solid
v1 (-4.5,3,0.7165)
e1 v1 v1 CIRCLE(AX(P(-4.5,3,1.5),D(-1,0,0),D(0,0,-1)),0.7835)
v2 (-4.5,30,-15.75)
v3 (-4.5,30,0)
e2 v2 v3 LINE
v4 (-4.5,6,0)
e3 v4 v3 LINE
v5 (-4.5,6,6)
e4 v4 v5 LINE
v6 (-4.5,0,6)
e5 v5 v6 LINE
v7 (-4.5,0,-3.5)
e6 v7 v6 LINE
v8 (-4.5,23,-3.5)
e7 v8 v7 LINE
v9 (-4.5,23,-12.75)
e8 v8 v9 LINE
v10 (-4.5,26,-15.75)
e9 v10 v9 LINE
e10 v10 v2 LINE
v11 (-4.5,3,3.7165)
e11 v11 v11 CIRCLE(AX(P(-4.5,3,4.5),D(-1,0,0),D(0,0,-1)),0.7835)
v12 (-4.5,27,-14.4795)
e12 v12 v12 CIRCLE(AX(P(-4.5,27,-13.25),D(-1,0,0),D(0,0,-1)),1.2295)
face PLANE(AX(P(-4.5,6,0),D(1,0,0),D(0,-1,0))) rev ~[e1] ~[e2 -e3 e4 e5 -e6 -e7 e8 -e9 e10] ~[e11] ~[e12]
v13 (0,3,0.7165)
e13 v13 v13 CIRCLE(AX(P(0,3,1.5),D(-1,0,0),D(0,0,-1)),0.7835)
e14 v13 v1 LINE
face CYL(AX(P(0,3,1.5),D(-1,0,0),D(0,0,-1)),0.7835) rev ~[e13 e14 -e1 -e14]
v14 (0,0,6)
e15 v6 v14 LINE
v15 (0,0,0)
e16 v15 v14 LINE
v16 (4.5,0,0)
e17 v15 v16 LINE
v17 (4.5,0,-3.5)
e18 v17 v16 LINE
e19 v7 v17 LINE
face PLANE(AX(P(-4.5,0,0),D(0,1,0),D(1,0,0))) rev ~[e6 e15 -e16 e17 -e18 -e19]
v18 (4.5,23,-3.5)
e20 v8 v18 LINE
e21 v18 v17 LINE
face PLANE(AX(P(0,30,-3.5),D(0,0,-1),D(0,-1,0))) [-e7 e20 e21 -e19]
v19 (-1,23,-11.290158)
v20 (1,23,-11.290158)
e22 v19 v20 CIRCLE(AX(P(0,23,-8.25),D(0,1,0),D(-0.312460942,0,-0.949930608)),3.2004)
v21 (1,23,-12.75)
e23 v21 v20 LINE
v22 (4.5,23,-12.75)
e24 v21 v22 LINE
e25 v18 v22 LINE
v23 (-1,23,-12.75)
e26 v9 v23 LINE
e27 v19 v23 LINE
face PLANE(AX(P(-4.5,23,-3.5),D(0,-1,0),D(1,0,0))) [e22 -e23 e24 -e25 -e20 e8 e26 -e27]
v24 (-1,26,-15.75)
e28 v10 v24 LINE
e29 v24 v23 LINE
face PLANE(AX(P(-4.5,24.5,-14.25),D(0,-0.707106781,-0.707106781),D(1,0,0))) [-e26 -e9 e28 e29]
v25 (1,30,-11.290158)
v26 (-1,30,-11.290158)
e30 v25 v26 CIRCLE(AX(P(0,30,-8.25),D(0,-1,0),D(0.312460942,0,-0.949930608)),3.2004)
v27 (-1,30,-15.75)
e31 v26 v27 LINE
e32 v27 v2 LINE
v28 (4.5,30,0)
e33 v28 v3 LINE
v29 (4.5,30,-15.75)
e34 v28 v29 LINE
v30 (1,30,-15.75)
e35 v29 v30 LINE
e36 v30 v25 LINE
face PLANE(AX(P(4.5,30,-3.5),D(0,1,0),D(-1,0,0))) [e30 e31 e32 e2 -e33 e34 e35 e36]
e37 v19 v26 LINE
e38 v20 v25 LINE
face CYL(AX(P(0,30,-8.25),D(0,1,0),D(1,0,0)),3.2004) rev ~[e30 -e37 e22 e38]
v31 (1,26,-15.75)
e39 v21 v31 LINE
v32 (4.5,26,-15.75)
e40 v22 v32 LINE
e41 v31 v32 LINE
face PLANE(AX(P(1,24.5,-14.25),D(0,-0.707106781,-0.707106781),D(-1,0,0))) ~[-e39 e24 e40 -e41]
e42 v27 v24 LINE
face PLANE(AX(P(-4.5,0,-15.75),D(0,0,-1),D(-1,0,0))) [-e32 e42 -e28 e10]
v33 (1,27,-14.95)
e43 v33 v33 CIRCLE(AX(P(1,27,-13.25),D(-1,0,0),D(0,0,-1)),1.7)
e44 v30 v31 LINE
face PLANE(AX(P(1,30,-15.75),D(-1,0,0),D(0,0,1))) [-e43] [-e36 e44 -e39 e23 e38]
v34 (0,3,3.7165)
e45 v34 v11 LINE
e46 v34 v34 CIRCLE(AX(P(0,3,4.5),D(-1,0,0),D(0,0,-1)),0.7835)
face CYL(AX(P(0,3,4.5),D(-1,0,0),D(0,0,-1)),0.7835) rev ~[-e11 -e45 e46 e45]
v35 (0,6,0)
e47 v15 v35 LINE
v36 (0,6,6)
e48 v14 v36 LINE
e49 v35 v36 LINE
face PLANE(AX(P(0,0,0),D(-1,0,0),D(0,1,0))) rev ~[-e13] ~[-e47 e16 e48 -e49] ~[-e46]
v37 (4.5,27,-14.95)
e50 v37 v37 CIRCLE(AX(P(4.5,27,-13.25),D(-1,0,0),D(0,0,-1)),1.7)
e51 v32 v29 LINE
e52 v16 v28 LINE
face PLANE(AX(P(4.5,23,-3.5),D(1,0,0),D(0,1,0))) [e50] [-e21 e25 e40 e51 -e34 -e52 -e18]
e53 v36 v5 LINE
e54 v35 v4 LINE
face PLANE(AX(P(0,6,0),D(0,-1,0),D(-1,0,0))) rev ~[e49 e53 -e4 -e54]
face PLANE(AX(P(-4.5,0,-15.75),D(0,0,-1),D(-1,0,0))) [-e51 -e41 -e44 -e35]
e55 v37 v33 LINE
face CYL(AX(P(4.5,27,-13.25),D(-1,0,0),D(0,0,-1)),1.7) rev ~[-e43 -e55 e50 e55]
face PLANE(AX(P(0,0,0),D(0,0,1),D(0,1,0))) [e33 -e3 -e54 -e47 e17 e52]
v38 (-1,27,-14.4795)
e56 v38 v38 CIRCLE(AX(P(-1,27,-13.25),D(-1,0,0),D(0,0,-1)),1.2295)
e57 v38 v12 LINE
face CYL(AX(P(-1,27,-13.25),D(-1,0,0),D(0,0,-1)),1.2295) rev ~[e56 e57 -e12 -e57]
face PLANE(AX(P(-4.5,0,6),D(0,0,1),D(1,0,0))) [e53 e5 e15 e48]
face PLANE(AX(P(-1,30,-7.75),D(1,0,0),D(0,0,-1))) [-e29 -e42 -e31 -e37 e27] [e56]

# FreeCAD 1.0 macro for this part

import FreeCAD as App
import Part
import Sketcher


def edges_at(feature, points):
    """Names of the edges that pass closest to the given points."""
    edges = feature.Shape.Edges
    near = lambda p: min(range(len(edges)), key=lambda i: edges[i].distToShape(Part.Vertex(*p))[0])
    return sorted({f"Edge{near(p) + 1}" for p in points})


def add_polygon(sketch, points):
    """Adds a closed chain of lines whose ends are joined by coincident constraints."""
    first, n = sketch.GeometryCount, len(points)
    for a, b in zip(points, points[1:] + points[:1]):
        sketch.addGeometry(Part.LineSegment(App.Vector(*a, 0), App.Vector(*b, 0)), False)
    for i in range(n):
        sketch.addConstraint(Sketcher.Constraint("Coincident", first + i, 2, first + (i + 1) % n, 1))

doc = App.newDocument("Part")
params = doc.addObject("Spreadsheet::Sheet", "Params")
for row, (alias, value) in enumerate([
    ("sketch1_width", "30 mm"),
    ("sketch1_height", "3.5 mm"),
    ("pad1_length", "9 mm"),
    ("sketch2_height", "7 mm"),
    ("sketch2_width", "9 mm"),
    ("pad2_length", "12.25 mm"),
    ("sketch3_height", "6 mm"),
    ("sketch3_width", "4.5 mm"),
    ("pad3_length", "6 mm"),
    ("sketch5_width", "2 mm"),
    ("sketch5_height", "8 mm"),
    ("sketch6_diameter", "3.4 mm"),
    ("hole_diameter", "3.4 mm"),
    ("hole_depth", "3.5 mm"),
    ("hole2_diameter", "2.459 mm"),
    ("hole2_depth", "3.5 mm"),
    ("chamfer_size", "3 mm"),
    ("hole3_diameter", "1.567 mm"),
    ("hole4_diameter", "1.567 mm"),
], start=1):
    params.set(f"A{row}", alias)
    params.set(f"B{row}", "=" + value)
    params.setAlias(f"B{row}", alias)

body = doc.addObject("PartDesign::Body", "Body")

# Sketch on YZ plane
sketch1 = doc.addObject("Sketcher::SketchObject", "Sketch")
body.addObject(sketch1)
sketch1.AttachmentSupport = (doc.YZ_Plane, [""])
sketch1.MapMode = "FlatFace"
add_polygon(sketch1, [(30, 0), (0, 0), (0, -3.5), (30, -3.5)])  # lines 0-3
sketch1.addConstraint([
    Sketcher.Constraint("Horizontal", 0),
    Sketcher.Constraint("Vertical", 1),
    Sketcher.Constraint("Horizontal", 2),
    Sketcher.Constraint("Vertical", 3),
    Sketcher.Constraint("Coincident", 0, 2, -1, 1),
    Sketcher.Constraint("DistanceX", 0, 2, 0, 1, 30.0),
    Sketcher.Constraint("DistanceY", 1, 2, 1, 1, 3.5),
])
sketch1.setExpression("Constraints[9]", "Params.sketch1_width")
sketch1.setExpression("Constraints[10]", "Params.sketch1_height")
pad1 = doc.addObject("PartDesign::Pad", "Pad")
body.addObject(pad1)
pad1.Profile = sketch1
pad1.setExpression("Length", "Params.pad1_length")
pad1.Midplane = True

# Sketch on XY plane
sketch2 = doc.addObject("Sketcher::SketchObject", "Sketch001")
body.addObject(sketch2)
sketch2.AttachmentSupport = (doc.XY_Plane, [""])
sketch2.MapMode = "FlatFace"
sketch2.AttachmentOffset = App.Placement(App.Vector(0, 0, -3.5), App.Rotation())
add_polygon(sketch2, [(-4, 30), (4, 30), (4, 23), (-4, 23)])  # lines 0-3
sketch2.addConstraint([
    Sketcher.Constraint("Horizontal", 0),
    Sketcher.Constraint("Vertical", 1),
    Sketcher.Constraint("Horizontal", 2),
    Sketcher.Constraint("Vertical", 3),
    Sketcher.Constraint("DistanceY", 1, 2, 1, 1, 7.0),
    Sketcher.Constraint("DistanceX", 0, 1, 0, 2, 9.0),
    Sketcher.Constraint("DistanceY", -1, 1, 0, 2, 30.0),
    Sketcher.Constraint("DistanceX", -1, 1, 0, 2, 4.5),
])
sketch2.setExpression("Constraints[8]", "Params.sketch2_height")
sketch2.setExpression("Constraints[9]", "Params.sketch2_width")
pad2 = doc.addObject("PartDesign::Pad", "Pad001")
body.addObject(pad2)
pad2.Profile = sketch2
pad2.setExpression("Length", "Params.pad2_length")
pad2.Reversed = True

# Sketch on XY plane
sketch3 = doc.addObject("Sketcher::SketchObject", "Sketch002")
body.addObject(sketch3)
sketch3.AttachmentSupport = (doc.XY_Plane, [""])
sketch3.MapMode = "FlatFace"
add_polygon(sketch3, [(-4.5, 6), (-4.5, 0), (0, 0), (0, 6)])  # lines 0-3
sketch3.addConstraint([
    Sketcher.Constraint("Vertical", 0),
    Sketcher.Constraint("Horizontal", 1),
    Sketcher.Constraint("Vertical", 2),
    Sketcher.Constraint("Horizontal", 3),
    Sketcher.Constraint("Coincident", 1, 2, -1, 1),
    Sketcher.Constraint("DistanceY", 0, 2, 0, 1, 6.0),
    Sketcher.Constraint("DistanceX", 1, 1, 1, 2, 4.5),
])
sketch3.setExpression("Constraints[9]", "Params.sketch3_height")
sketch3.setExpression("Constraints[10]", "Params.sketch3_width")
pad3 = doc.addObject("PartDesign::Pad", "Pad002")
body.addObject(pad3)
pad3.Profile = sketch3
pad3.setExpression("Length", "Params.pad3_length")

# Sketch on XZ plane
sketch4 = doc.addObject("Sketcher::SketchObject", "Sketch003")
body.addObject(sketch4)
sketch4.AttachmentSupport = (doc.XZ_Plane, [""])
sketch4.MapMode = "FlatFace"
sketch4.AttachmentOffset = App.Placement(App.Vector(0, 0, -30), App.Rotation())
sketch4.addGeometry(Part.Circle(App.Vector(0, -8.2, 0), App.Vector(0, 0, 1), 3.2), False)
sketch4.addConstraint([
    Sketcher.Constraint("PointOnObject", 0, 3, -2),
    Sketcher.Constraint("Diameter", 0, 6.4008),
    Sketcher.Constraint("DistanceY", 0, 3, -1, 1, 8.25),
])
pocket1 = doc.addObject("PartDesign::Pocket", "Pocket")
body.addObject(pocket1)
pocket1.Profile = sketch4
pocket1.Type = "UpToFirst"
pocket1.Reversed = True

# Sketch on XZ plane
sketch5 = doc.addObject("Sketcher::SketchObject", "Sketch004")
body.addObject(sketch5)
sketch5.AttachmentSupport = (doc.XZ_Plane, [""])
sketch5.MapMode = "FlatFace"
sketch5.AttachmentOffset = App.Placement(App.Vector(0, 0, -30), App.Rotation())
add_polygon(sketch5, [(1, -7.8), (1, -15.8), (-1, -15.8), (-1, -7.8)])  # lines 0-3
sketch5.addConstraint([
    Sketcher.Constraint("Vertical", 0),
    Sketcher.Constraint("Horizontal", 1),
    Sketcher.Constraint("Vertical", 2),
    Sketcher.Constraint("Horizontal", 3),
    Sketcher.Constraint("DistanceX", 1, 2, 1, 1, 2.0),
    Sketcher.Constraint("DistanceY", 0, 2, 0, 1, 8.0),
    Sketcher.Constraint("DistanceX", -1, 1, 0, 2, 1.0),
    Sketcher.Constraint("DistanceY", 0, 2, -1, 1, 15.75),
])
sketch5.setExpression("Constraints[8]", "Params.sketch5_width")
sketch5.setExpression("Constraints[9]", "Params.sketch5_height")
pocket2 = doc.addObject("PartDesign::Pocket", "Pocket001")
body.addObject(pocket2)
pocket2.Profile = sketch5
pocket2.Type = "UpToFirst"
pocket2.Reversed = True

# Sketch on YZ plane
sketch6 = doc.addObject("Sketcher::SketchObject", "Sketch005")
body.addObject(sketch6)
sketch6.AttachmentSupport = (doc.YZ_Plane, [""])
sketch6.MapMode = "FlatFace"
sketch6.AttachmentOffset = App.Placement(App.Vector(0, 0, 4.5), App.Rotation())
sketch6.addGeometry(Part.Circle(App.Vector(27, -13.2, 0), App.Vector(0, 0, 1), 1.7), False)
sketch6.addConstraint([
    Sketcher.Constraint("Diameter", 0, 3.4),
    Sketcher.Constraint("DistanceX", -1, 1, 0, 3, 27.0),
    Sketcher.Constraint("DistanceY", 0, 3, -1, 1, 13.25),
])
sketch6.setExpression("Constraints[0]", "Params.sketch6_diameter")
doc.recompute()
hole = doc.addObject("PartDesign::Hole", "Hole")
body.addObject(hole)
hole.Profile = sketch6
hole.ThreadType = "None"
hole.setExpression("Diameter", "Params.hole_diameter")
hole.DepthType = "Dimension"
hole.setExpression("Depth", "Params.hole_depth")
hole.DrillPoint = "Flat"

# Sketch on YZ plane
sketch7 = doc.addObject("Sketcher::SketchObject", "Sketch006")
body.addObject(sketch7)
sketch7.AttachmentSupport = (doc.YZ_Plane, [""])
sketch7.MapMode = "FlatFace"
sketch7.AttachmentOffset = App.Placement(App.Vector(0, 0, -1), App.Rotation())
sketch7.addGeometry(Part.Circle(App.Vector(27, -13.2, 0), App.Vector(0, 0, 1), 1.2), False)
sketch7.addConstraint([
    Sketcher.Constraint("Diameter", 0, 2.459),
    Sketcher.Constraint("DistanceX", -1, 1, 0, 3, 27.0),
    Sketcher.Constraint("DistanceY", 0, 3, -1, 1, 13.25),
])
doc.recompute()
hole2 = doc.addObject("PartDesign::Hole", "Hole001")
body.addObject(hole2)
hole2.Profile = sketch7
hole2.ThreadType = "None"
hole2.setExpression("Diameter", "Params.hole2_diameter")
hole2.DepthType = "Dimension"
hole2.setExpression("Depth", "Params.hole2_depth")
hole2.DrillPoint = "Flat"
doc.recompute()

chamfer = doc.addObject("PartDesign::Chamfer", "Chamfer")
body.addObject(chamfer)
chamfer.Base = (hole2, edges_at(hole2, [(2.75, 23, -15.75), (-2.75, 23, -15.75)]))
chamfer.setExpression("Size", "Params.chamfer_size")

# Sketch on YZ plane
sketch8 = doc.addObject("Sketcher::SketchObject", "Sketch007")
body.addObject(sketch8)
sketch8.AttachmentSupport = (doc.YZ_Plane, [""])
sketch8.MapMode = "FlatFace"
sketch8.addGeometry(Part.Circle(App.Vector(3, 4.5, 0), App.Vector(0, 0, 1), 0.8), False)
sketch8.addConstraint([
    Sketcher.Constraint("Diameter", 0, 1.567),
    Sketcher.Constraint("DistanceX", -1, 1, 0, 3, 3.0),
    Sketcher.Constraint("DistanceY", -1, 1, 0, 3, 4.5),
])
doc.recompute()
hole3 = doc.addObject("PartDesign::Hole", "Hole002")
body.addObject(hole3)
hole3.Profile = sketch8
hole3.ThreadType = "None"
hole3.setExpression("Diameter", "Params.hole3_diameter")
hole3.DepthType = "ThroughAll"

# Sketch on YZ plane
sketch9 = doc.addObject("Sketcher::SketchObject", "Sketch008")
body.addObject(sketch9)
sketch9.AttachmentSupport = (doc.YZ_Plane, [""])
sketch9.MapMode = "FlatFace"
sketch9.addGeometry(Part.Circle(App.Vector(3, 1.5, 0), App.Vector(0, 0, 1), 0.8), False)
sketch9.addConstraint([
    Sketcher.Constraint("Diameter", 0, 1.567),
    Sketcher.Constraint("DistanceX", -1, 1, 0, 3, 3.0),
    Sketcher.Constraint("DistanceY", -1, 1, 0, 3, 1.5),
])
doc.recompute()
hole4 = doc.addObject("PartDesign::Hole", "Hole003")
body.addObject(hole4)
hole4.Profile = sketch9
hole4.ThreadType = "None"
hole4.setExpression("Diameter", "Params.hole4_diameter")
hole4.DepthType = "ThroughAll"

doc.recompute()
